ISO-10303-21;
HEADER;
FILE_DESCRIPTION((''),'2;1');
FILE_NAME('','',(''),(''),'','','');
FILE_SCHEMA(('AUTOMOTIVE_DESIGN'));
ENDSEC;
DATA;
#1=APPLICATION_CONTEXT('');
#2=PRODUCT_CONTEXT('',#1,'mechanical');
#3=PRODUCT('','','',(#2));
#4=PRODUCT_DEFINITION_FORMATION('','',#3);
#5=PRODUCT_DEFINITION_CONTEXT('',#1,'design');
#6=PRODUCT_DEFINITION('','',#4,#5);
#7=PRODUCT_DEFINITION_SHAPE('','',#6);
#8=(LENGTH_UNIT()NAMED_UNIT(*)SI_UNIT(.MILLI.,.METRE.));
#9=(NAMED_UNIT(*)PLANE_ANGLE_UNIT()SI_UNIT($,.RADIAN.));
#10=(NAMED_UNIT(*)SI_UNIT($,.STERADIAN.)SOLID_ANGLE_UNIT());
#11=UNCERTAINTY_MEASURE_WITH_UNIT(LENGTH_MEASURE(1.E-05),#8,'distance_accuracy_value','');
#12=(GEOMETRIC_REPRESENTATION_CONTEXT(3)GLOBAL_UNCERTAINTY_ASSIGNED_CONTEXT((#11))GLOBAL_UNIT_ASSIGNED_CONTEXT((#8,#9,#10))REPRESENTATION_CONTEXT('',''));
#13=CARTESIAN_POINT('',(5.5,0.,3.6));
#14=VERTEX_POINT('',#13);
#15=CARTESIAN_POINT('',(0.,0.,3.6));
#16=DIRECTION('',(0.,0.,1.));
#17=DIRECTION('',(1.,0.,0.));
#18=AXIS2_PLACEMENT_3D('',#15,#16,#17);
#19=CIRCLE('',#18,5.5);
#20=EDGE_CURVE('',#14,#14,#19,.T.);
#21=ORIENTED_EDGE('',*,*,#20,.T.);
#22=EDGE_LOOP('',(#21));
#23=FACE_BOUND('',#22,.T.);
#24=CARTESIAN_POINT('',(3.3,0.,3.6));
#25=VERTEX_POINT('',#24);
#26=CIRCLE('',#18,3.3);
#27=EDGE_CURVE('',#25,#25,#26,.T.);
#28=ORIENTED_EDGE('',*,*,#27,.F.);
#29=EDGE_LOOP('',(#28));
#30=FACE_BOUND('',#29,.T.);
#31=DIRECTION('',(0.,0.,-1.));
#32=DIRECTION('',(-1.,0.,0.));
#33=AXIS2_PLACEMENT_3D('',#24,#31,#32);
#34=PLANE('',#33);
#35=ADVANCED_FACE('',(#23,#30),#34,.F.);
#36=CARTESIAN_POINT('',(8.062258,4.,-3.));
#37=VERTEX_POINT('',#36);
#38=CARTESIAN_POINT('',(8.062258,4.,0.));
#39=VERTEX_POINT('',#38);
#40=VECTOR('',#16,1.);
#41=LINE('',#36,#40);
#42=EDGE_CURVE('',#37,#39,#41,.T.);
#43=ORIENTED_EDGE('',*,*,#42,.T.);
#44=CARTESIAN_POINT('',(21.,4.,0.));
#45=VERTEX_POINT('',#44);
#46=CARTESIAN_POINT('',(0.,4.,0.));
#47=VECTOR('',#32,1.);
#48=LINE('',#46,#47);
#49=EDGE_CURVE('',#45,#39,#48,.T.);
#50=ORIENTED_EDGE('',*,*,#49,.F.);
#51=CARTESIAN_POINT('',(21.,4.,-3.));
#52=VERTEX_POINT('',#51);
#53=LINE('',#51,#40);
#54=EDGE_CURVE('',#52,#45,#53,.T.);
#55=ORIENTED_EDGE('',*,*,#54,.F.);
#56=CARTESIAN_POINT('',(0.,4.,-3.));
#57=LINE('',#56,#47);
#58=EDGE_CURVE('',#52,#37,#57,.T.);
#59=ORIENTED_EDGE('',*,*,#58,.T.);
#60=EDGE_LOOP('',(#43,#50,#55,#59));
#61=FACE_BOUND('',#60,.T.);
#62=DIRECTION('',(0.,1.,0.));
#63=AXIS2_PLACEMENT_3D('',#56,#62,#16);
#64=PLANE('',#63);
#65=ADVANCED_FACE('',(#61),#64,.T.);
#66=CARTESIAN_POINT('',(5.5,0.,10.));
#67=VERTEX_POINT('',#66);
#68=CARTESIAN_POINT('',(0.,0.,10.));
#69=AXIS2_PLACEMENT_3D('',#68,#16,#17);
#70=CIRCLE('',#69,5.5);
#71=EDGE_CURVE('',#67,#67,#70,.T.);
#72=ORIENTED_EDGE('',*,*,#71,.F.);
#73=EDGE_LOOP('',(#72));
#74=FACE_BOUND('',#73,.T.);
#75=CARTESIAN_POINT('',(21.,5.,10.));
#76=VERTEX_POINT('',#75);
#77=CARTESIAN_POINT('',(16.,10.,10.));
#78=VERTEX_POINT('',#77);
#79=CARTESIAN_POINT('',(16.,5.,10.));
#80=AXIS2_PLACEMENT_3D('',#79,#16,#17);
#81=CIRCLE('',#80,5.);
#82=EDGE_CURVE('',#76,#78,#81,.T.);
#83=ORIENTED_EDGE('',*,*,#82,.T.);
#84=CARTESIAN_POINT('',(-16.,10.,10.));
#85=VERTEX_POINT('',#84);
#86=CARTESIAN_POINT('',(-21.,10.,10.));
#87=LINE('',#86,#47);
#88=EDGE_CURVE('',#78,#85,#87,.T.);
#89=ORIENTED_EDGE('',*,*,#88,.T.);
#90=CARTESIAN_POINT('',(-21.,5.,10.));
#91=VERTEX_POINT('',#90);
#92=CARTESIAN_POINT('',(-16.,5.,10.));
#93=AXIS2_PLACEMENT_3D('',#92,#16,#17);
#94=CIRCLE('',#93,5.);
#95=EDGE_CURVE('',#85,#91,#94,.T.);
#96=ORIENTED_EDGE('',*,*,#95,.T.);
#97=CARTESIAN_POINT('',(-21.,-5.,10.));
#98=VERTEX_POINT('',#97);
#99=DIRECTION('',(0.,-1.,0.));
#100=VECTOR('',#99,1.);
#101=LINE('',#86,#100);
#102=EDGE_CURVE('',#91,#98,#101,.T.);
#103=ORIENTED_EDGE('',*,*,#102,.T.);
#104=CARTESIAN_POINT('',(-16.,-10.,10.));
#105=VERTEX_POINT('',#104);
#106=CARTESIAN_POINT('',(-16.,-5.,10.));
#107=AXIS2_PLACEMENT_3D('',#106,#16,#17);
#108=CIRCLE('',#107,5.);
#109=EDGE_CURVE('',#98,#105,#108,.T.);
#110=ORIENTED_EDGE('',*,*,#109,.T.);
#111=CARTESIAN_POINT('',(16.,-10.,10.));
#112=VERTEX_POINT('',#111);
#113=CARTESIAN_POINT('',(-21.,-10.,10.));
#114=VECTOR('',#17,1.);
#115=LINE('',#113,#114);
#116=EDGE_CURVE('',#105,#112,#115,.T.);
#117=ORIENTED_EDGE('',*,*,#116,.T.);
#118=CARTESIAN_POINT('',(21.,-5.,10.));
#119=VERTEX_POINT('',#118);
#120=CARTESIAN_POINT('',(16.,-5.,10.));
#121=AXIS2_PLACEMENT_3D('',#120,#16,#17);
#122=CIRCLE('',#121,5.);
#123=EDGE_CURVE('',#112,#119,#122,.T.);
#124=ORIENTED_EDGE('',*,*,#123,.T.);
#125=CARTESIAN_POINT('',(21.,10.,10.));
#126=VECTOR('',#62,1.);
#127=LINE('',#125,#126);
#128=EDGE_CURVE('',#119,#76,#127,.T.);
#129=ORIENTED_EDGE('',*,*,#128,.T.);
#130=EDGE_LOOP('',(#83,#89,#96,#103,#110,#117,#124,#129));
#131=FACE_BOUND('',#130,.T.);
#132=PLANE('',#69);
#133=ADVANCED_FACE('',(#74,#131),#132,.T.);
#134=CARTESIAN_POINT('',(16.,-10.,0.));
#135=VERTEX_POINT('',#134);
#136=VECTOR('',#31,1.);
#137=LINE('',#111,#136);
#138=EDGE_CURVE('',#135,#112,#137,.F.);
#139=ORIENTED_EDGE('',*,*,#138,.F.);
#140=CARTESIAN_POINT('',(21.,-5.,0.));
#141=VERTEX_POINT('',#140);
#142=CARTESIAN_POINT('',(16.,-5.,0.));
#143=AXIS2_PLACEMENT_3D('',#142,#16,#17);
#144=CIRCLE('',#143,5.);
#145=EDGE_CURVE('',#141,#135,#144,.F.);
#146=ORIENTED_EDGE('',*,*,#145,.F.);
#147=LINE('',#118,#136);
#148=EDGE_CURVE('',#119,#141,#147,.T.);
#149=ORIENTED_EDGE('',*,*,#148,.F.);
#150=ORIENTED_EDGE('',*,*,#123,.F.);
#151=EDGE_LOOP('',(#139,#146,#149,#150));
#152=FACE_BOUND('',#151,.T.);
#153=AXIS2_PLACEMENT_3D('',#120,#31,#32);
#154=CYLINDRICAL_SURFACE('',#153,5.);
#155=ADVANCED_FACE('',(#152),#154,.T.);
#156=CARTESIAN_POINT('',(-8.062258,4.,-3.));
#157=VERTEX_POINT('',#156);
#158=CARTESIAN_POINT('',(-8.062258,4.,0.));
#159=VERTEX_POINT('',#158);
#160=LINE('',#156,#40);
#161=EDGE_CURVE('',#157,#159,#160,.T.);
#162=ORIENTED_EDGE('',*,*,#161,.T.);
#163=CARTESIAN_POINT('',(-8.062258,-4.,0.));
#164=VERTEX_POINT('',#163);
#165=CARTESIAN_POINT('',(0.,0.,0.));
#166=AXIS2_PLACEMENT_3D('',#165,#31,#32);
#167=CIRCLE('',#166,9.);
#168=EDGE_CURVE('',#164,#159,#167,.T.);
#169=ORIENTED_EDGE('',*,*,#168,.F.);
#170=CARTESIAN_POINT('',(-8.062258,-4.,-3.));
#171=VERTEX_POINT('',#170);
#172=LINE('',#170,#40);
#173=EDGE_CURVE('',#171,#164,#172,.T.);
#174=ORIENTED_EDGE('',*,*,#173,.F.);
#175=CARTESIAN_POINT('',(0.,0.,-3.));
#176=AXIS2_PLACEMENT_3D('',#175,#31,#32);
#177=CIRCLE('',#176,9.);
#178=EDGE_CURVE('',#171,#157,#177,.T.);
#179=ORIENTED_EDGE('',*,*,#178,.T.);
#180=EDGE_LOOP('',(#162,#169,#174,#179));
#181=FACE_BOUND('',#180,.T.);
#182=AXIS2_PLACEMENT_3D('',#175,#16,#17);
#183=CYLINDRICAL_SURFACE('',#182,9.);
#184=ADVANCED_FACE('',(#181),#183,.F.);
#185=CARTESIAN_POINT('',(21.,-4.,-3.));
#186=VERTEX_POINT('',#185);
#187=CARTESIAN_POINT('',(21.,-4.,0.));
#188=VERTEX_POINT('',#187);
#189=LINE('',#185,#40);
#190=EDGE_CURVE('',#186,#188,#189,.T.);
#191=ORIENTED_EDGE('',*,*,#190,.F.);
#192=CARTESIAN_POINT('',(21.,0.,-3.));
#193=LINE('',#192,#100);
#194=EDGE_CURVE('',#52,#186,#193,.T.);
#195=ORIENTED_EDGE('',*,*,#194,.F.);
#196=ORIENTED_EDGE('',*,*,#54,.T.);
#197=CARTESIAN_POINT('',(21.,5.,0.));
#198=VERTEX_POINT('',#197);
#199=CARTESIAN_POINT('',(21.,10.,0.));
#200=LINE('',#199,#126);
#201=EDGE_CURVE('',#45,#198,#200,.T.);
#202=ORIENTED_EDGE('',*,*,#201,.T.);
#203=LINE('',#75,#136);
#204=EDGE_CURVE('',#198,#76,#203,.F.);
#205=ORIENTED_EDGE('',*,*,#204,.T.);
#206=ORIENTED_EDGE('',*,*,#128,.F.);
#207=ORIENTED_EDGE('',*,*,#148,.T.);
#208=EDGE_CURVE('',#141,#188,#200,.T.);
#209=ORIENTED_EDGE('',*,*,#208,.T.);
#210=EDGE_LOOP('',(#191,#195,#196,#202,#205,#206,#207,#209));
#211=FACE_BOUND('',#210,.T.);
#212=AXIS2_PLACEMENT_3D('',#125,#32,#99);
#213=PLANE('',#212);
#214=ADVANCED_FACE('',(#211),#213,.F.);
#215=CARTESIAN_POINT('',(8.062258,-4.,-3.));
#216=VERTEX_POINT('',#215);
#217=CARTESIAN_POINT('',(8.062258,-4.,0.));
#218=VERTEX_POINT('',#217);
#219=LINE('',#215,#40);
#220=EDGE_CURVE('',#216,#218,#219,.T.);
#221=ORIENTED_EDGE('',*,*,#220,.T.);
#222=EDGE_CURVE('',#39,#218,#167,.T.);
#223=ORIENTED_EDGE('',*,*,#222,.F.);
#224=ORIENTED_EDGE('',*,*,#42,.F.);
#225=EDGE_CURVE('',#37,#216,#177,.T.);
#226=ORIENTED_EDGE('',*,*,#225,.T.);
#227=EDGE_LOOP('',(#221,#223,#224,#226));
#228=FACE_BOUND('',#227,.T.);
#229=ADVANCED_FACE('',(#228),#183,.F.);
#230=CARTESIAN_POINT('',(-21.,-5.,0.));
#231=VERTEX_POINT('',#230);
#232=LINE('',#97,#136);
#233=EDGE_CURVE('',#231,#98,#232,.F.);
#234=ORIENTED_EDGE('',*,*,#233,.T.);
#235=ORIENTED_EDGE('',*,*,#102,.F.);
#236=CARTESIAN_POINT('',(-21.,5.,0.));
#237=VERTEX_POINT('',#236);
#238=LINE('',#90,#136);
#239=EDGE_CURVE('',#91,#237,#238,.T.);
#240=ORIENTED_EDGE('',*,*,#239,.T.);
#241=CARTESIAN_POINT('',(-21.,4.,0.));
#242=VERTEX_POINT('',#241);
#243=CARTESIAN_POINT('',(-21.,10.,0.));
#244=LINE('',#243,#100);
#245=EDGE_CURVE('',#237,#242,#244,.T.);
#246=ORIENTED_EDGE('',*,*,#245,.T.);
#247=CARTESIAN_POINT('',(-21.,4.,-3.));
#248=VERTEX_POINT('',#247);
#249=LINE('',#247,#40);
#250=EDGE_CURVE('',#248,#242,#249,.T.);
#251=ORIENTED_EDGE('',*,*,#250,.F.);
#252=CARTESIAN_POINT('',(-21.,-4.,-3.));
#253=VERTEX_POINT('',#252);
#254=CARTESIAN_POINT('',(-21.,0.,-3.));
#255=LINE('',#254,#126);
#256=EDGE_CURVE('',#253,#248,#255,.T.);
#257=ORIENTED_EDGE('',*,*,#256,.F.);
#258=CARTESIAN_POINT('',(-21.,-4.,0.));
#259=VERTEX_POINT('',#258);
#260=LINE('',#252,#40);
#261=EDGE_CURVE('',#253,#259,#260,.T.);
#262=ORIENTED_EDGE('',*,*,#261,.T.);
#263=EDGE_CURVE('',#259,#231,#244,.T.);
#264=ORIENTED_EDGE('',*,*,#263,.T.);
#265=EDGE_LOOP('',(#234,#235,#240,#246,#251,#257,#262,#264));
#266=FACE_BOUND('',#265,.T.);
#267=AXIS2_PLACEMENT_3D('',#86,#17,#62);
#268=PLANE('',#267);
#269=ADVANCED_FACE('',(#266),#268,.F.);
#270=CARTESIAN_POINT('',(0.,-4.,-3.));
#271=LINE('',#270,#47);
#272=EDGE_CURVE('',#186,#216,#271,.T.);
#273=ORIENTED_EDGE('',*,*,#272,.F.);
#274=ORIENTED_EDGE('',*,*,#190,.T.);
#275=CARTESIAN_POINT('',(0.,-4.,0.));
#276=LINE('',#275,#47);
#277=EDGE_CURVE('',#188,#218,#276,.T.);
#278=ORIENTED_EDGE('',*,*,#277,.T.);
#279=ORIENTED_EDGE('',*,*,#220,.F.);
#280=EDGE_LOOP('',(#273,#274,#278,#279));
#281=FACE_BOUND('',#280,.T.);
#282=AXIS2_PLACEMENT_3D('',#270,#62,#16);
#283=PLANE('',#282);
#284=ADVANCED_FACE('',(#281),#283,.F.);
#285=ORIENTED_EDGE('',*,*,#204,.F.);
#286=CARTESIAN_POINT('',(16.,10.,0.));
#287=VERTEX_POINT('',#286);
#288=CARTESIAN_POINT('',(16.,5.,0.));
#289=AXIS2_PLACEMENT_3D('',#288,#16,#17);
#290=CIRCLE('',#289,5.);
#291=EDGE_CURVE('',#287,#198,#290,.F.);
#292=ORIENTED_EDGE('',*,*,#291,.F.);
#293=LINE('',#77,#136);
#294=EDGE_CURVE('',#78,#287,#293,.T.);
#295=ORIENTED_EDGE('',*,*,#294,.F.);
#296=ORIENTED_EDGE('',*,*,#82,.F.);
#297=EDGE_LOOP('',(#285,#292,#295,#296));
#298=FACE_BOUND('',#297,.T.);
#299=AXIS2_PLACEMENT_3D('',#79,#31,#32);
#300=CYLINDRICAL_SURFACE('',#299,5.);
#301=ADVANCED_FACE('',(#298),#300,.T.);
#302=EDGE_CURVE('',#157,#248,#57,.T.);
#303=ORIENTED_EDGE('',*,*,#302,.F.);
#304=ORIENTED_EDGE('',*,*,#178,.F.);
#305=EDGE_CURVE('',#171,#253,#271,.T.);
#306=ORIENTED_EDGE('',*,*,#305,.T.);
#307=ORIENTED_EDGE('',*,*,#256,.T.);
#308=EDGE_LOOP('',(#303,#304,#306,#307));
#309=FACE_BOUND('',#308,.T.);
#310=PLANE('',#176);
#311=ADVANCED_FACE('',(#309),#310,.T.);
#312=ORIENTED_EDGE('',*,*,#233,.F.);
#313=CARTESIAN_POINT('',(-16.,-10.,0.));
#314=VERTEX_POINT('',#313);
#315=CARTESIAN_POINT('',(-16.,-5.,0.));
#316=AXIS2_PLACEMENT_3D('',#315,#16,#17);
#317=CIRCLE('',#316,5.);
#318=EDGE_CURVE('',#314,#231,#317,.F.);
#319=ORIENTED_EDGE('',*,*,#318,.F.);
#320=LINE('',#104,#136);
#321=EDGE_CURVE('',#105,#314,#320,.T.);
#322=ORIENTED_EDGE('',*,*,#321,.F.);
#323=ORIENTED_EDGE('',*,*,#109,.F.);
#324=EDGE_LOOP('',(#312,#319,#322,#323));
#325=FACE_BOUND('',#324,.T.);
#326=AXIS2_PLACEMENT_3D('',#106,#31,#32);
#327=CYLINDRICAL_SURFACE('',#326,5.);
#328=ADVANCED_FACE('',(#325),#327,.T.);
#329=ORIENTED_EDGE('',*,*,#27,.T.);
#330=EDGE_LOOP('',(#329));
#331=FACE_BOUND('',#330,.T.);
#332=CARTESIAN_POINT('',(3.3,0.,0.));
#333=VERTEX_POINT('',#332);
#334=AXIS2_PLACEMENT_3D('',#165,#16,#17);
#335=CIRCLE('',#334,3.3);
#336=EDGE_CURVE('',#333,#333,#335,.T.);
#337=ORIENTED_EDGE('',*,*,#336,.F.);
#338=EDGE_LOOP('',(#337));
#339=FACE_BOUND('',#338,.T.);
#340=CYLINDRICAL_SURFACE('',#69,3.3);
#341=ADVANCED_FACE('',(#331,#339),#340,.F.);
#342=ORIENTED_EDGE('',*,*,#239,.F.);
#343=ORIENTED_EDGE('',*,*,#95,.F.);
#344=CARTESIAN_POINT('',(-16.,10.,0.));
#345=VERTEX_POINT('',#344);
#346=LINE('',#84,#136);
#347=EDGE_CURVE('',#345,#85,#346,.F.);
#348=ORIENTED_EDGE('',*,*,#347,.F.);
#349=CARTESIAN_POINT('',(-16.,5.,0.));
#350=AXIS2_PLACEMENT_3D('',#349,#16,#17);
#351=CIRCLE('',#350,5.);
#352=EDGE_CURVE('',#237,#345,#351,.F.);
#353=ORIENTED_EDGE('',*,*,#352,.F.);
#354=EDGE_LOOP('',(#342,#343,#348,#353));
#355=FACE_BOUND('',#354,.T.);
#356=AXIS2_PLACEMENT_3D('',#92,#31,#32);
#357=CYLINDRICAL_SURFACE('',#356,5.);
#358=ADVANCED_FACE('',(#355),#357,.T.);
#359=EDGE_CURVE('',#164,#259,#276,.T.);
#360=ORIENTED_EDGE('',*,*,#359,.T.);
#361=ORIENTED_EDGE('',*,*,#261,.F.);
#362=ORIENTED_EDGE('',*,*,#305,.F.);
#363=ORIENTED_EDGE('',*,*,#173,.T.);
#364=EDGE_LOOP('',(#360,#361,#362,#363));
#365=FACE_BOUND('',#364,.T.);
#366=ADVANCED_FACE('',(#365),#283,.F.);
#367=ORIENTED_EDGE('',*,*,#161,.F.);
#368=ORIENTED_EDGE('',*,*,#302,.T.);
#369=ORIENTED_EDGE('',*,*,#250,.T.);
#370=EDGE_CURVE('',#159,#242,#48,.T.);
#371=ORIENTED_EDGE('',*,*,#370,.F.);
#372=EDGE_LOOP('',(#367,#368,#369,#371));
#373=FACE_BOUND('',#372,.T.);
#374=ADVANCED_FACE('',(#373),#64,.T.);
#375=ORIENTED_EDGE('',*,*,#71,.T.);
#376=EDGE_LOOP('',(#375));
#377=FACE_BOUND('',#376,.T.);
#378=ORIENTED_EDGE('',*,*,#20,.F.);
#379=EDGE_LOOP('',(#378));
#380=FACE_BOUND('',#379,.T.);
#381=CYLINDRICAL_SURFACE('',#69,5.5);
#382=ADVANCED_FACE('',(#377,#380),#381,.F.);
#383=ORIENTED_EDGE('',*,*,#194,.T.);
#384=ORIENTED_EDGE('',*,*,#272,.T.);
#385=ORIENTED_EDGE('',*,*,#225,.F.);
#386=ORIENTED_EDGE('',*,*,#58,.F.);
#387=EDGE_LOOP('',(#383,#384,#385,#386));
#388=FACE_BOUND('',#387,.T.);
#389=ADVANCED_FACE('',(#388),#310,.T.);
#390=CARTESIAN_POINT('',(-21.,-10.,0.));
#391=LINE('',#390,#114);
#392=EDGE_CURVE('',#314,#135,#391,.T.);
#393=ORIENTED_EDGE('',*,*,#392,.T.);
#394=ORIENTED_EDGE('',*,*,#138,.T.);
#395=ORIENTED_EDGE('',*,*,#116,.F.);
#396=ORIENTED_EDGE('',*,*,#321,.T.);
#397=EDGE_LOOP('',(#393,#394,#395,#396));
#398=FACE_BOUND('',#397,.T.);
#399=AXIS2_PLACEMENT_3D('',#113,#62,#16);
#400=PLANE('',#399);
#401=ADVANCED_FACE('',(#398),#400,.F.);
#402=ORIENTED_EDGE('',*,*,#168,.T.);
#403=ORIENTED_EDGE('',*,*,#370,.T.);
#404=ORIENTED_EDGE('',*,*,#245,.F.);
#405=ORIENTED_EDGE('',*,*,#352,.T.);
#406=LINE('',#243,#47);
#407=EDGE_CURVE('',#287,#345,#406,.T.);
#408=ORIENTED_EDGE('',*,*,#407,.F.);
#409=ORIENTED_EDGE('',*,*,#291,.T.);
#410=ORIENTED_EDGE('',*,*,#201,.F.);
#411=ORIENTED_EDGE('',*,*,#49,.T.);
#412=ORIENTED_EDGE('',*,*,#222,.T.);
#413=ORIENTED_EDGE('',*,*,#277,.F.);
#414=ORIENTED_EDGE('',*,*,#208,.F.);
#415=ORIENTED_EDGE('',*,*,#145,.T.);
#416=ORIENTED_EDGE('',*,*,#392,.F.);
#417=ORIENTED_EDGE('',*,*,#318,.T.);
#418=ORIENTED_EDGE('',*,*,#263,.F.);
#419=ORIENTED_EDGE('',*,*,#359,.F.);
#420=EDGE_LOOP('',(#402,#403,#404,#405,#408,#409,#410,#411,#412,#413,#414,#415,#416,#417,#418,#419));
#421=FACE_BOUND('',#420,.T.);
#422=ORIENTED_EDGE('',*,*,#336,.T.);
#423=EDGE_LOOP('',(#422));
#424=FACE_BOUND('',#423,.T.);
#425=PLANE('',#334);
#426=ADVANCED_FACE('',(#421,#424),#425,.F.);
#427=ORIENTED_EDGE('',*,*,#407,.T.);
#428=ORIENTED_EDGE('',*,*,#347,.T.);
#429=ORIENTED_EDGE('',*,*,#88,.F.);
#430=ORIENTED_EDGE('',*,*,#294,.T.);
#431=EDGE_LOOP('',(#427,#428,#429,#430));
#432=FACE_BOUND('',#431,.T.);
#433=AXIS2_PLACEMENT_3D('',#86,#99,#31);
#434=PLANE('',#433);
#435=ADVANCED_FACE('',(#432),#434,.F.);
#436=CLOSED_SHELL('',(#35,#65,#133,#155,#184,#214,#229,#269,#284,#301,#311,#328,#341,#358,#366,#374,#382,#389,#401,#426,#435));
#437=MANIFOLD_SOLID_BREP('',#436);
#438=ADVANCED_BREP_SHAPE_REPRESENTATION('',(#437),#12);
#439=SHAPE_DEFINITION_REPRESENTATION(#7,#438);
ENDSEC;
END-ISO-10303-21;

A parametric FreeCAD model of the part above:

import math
import FreeCAD as App
import Part
import Sketcher
from FreeCAD import Vector
Q = App.Units.Quantity


def edges_at(feature, points):
    """Names of the edges that pass closest to the given points."""
    edges = feature.Shape.Edges
    near = lambda p: min(range(len(edges)), key=lambda i: edges[i].distToShape(Part.Vertex(*p))[0])
    return sorted({f"Edge{near(p) + 1}" for p in points})


def add_polygon(sketch, points):
    """Adds a closed chain of lines whose ends are joined by coincident constraints."""
    first, n = sketch.GeometryCount, len(points)
    for a, b in zip(points, points[1:] + points[:1]):
        sketch.addGeometry(Part.LineSegment(App.Vector(*a, 0), App.Vector(*b, 0)), False)
    for i in range(n):
        sketch.addConstraint(Sketcher.Constraint("Coincident", first + i, 2, first + (i + 1) % n, 1))

doc = App.newDocument("Part")
body = doc.addObject("PartDesign::Body", "Body")

# Sketch on XY plane
sketch1 = doc.addObject("Sketcher::SketchObject", "Sketch")
body.addObject(sketch1)
sketch1.AttachmentSupport = (doc.XY_Plane, [""])
sketch1.MapMode = "FlatFace"
add_polygon(sketch1, [(-21, 10), (-21, -10), (21, -10), (21, 10)])  # lines 0-3
sketch1.addConstraint([
    Sketcher.Constraint("Vertical", 0),
    Sketcher.Constraint("Horizontal", 1),
    Sketcher.Constraint("Vertical", 2),
    Sketcher.Constraint("Horizontal", 3),
    Sketcher.Constraint("Symmetric", 0, 2, 2, 2, -1, 1),
    Sketcher.Constraint("DistanceX", 1, 1, 1, 2, Q("42 mm")),
    Sketcher.Constraint("DistanceY", 0, 2, 0, 1, Q("20 mm")),
])
pad1 = doc.addObject("PartDesign::Pad", "Pad")
body.addObject(pad1)
pad1.Profile = sketch1
pad1.Length = 10

# Sketch on XY plane
sketch2 = doc.addObject("Sketcher::SketchObject", "Sketch001")
body.addObject(sketch2)
sketch2.AttachmentSupport = (doc.XY_Plane, [""])
sketch2.MapMode = "FlatFace"
sketch2.AttachmentOffset = App.Placement(Vector(0, 0, 10), App.Rotation())
sketch2.addGeometry(Part.Circle(Vector(0, 0, 0), Vector(0, 0, 1), 3.3), False)
sketch2.addConstraint([
    Sketcher.Constraint("Coincident", 0, 3, -1, 1),
    Sketcher.Constraint("Diameter", 0, Q("6.6 mm")),
])
doc.recompute()
hole = doc.addObject("PartDesign::Hole", "Hole")
body.addObject(hole)
hole.Profile = sketch2
hole.ThreadType = "None"
hole.Diameter = 6.6
hole.DepthType = "ThroughAll"
hole.HoleCutType = "Counterbore"
hole.HoleCutDiameter = 11
hole.HoleCutDepth = 6.4

# Sketch on XY plane
sketch3 = doc.addObject("Sketcher::SketchObject", "Sketch002")
body.addObject(sketch3)
sketch3.AttachmentSupport = (doc.XY_Plane, [""])
sketch3.MapMode = "FlatFace"
sketch3.addGeometry([
    Part.LineSegment(Vector(8.1, 4, 0), Vector(21, 4, 0)),  # 0
    Part.LineSegment(Vector(21, 4, 0), Vector(21, -4, 0)),  # 1
    Part.LineSegment(Vector(21, -4, 0), Vector(8.1, -4, 0)),  # 2
    Part.ArcOfCircle(Part.Circle(Vector(0, 0, 0), Vector(0, 0, 1), 9), math.radians(-26), math.radians(26)),  # 3
    Part.LineSegment(Vector(-21, 4, 0), Vector(-8.1, 4, 0)),  # 4
    Part.ArcOfCircle(Part.Circle(Vector(0, 0, 0), Vector(0, 0, 1), 9), math.radians(154), math.radians(180)),  # 5
    Part.ArcOfCircle(Part.Circle(Vector(0, 0, 0), Vector(0, 0, 1), 9), math.radians(-180), math.radians(-154)),  # 6
    Part.LineSegment(Vector(-8.1, -4, 0), Vector(-21, -4, 0)),  # 7
    Part.LineSegment(Vector(-21, -4, 0), Vector(-21, 4, 0)),  # 8
], False)
sketch3.addConstraint([
    Sketcher.Constraint("Coincident", 0, 2, 1, 1),
    Sketcher.Constraint("Coincident", 1, 2, 2, 1),
    Sketcher.Constraint("Coincident", 2, 2, 3, 1),
    Sketcher.Constraint("Coincident", 3, 2, 0, 1),
    Sketcher.Constraint("Coincident", 4, 2, 5, 1),
    Sketcher.Constraint("Tangent", 5, 2, 6, 1),
    Sketcher.Constraint("Coincident", 6, 2, 7, 1),
    Sketcher.Constraint("Coincident", 7, 2, 8, 1),
    Sketcher.Constraint("Coincident", 8, 2, 4, 1),
    Sketcher.Constraint("Horizontal", 0),
    Sketcher.Constraint("Vertical", 1),
    Sketcher.Constraint("Horizontal", 2),
    Sketcher.Constraint("Horizontal", 4),
    Sketcher.Constraint("Horizontal", 7),
    Sketcher.Constraint("Vertical", 8),
    Sketcher.Constraint("Coincident", 3, 3, -1, 1),
    Sketcher.Constraint("Coincident", 5, 3, -1, 1),
    Sketcher.Constraint("Equal", 3, 5),
    Sketcher.Constraint("Equal", 5, 6),
    Sketcher.Constraint("Symmetric", 0, 2, 7, 2, -1, 1),
    Sketcher.Constraint("PointOnObject", 5, 2, -1),
    Sketcher.Constraint("Horizontal", 3, 2, 4, 2),
    Sketcher.Constraint("Horizontal", 2, 2, 6, 2),
    Sketcher.Constraint("Radius", 3, Q("9 mm")),
    Sketcher.Constraint("DistanceY", 1, 2, 1, 1, Q("8 mm")),
    Sketcher.Constraint("DistanceX", -1, 1, 0, 2, Q("21 mm")),
])
pad2 = doc.addObject("PartDesign::Pad", "Pad001")
body.addObject(pad2)
pad2.Profile = sketch3
pad2.Length = 3
pad2.Reversed = True
doc.recompute()

fillet = doc.addObject("PartDesign::Fillet", "Fillet")
body.addObject(fillet)
fillet.Base = (pad2, edges_at(pad2, [
    (21, -10, 5),
    (-21, -10, 5),
    (-21, 10, 5),
    (21, 10, 5),
]))
fillet.Radius = 5

doc.recompute()
